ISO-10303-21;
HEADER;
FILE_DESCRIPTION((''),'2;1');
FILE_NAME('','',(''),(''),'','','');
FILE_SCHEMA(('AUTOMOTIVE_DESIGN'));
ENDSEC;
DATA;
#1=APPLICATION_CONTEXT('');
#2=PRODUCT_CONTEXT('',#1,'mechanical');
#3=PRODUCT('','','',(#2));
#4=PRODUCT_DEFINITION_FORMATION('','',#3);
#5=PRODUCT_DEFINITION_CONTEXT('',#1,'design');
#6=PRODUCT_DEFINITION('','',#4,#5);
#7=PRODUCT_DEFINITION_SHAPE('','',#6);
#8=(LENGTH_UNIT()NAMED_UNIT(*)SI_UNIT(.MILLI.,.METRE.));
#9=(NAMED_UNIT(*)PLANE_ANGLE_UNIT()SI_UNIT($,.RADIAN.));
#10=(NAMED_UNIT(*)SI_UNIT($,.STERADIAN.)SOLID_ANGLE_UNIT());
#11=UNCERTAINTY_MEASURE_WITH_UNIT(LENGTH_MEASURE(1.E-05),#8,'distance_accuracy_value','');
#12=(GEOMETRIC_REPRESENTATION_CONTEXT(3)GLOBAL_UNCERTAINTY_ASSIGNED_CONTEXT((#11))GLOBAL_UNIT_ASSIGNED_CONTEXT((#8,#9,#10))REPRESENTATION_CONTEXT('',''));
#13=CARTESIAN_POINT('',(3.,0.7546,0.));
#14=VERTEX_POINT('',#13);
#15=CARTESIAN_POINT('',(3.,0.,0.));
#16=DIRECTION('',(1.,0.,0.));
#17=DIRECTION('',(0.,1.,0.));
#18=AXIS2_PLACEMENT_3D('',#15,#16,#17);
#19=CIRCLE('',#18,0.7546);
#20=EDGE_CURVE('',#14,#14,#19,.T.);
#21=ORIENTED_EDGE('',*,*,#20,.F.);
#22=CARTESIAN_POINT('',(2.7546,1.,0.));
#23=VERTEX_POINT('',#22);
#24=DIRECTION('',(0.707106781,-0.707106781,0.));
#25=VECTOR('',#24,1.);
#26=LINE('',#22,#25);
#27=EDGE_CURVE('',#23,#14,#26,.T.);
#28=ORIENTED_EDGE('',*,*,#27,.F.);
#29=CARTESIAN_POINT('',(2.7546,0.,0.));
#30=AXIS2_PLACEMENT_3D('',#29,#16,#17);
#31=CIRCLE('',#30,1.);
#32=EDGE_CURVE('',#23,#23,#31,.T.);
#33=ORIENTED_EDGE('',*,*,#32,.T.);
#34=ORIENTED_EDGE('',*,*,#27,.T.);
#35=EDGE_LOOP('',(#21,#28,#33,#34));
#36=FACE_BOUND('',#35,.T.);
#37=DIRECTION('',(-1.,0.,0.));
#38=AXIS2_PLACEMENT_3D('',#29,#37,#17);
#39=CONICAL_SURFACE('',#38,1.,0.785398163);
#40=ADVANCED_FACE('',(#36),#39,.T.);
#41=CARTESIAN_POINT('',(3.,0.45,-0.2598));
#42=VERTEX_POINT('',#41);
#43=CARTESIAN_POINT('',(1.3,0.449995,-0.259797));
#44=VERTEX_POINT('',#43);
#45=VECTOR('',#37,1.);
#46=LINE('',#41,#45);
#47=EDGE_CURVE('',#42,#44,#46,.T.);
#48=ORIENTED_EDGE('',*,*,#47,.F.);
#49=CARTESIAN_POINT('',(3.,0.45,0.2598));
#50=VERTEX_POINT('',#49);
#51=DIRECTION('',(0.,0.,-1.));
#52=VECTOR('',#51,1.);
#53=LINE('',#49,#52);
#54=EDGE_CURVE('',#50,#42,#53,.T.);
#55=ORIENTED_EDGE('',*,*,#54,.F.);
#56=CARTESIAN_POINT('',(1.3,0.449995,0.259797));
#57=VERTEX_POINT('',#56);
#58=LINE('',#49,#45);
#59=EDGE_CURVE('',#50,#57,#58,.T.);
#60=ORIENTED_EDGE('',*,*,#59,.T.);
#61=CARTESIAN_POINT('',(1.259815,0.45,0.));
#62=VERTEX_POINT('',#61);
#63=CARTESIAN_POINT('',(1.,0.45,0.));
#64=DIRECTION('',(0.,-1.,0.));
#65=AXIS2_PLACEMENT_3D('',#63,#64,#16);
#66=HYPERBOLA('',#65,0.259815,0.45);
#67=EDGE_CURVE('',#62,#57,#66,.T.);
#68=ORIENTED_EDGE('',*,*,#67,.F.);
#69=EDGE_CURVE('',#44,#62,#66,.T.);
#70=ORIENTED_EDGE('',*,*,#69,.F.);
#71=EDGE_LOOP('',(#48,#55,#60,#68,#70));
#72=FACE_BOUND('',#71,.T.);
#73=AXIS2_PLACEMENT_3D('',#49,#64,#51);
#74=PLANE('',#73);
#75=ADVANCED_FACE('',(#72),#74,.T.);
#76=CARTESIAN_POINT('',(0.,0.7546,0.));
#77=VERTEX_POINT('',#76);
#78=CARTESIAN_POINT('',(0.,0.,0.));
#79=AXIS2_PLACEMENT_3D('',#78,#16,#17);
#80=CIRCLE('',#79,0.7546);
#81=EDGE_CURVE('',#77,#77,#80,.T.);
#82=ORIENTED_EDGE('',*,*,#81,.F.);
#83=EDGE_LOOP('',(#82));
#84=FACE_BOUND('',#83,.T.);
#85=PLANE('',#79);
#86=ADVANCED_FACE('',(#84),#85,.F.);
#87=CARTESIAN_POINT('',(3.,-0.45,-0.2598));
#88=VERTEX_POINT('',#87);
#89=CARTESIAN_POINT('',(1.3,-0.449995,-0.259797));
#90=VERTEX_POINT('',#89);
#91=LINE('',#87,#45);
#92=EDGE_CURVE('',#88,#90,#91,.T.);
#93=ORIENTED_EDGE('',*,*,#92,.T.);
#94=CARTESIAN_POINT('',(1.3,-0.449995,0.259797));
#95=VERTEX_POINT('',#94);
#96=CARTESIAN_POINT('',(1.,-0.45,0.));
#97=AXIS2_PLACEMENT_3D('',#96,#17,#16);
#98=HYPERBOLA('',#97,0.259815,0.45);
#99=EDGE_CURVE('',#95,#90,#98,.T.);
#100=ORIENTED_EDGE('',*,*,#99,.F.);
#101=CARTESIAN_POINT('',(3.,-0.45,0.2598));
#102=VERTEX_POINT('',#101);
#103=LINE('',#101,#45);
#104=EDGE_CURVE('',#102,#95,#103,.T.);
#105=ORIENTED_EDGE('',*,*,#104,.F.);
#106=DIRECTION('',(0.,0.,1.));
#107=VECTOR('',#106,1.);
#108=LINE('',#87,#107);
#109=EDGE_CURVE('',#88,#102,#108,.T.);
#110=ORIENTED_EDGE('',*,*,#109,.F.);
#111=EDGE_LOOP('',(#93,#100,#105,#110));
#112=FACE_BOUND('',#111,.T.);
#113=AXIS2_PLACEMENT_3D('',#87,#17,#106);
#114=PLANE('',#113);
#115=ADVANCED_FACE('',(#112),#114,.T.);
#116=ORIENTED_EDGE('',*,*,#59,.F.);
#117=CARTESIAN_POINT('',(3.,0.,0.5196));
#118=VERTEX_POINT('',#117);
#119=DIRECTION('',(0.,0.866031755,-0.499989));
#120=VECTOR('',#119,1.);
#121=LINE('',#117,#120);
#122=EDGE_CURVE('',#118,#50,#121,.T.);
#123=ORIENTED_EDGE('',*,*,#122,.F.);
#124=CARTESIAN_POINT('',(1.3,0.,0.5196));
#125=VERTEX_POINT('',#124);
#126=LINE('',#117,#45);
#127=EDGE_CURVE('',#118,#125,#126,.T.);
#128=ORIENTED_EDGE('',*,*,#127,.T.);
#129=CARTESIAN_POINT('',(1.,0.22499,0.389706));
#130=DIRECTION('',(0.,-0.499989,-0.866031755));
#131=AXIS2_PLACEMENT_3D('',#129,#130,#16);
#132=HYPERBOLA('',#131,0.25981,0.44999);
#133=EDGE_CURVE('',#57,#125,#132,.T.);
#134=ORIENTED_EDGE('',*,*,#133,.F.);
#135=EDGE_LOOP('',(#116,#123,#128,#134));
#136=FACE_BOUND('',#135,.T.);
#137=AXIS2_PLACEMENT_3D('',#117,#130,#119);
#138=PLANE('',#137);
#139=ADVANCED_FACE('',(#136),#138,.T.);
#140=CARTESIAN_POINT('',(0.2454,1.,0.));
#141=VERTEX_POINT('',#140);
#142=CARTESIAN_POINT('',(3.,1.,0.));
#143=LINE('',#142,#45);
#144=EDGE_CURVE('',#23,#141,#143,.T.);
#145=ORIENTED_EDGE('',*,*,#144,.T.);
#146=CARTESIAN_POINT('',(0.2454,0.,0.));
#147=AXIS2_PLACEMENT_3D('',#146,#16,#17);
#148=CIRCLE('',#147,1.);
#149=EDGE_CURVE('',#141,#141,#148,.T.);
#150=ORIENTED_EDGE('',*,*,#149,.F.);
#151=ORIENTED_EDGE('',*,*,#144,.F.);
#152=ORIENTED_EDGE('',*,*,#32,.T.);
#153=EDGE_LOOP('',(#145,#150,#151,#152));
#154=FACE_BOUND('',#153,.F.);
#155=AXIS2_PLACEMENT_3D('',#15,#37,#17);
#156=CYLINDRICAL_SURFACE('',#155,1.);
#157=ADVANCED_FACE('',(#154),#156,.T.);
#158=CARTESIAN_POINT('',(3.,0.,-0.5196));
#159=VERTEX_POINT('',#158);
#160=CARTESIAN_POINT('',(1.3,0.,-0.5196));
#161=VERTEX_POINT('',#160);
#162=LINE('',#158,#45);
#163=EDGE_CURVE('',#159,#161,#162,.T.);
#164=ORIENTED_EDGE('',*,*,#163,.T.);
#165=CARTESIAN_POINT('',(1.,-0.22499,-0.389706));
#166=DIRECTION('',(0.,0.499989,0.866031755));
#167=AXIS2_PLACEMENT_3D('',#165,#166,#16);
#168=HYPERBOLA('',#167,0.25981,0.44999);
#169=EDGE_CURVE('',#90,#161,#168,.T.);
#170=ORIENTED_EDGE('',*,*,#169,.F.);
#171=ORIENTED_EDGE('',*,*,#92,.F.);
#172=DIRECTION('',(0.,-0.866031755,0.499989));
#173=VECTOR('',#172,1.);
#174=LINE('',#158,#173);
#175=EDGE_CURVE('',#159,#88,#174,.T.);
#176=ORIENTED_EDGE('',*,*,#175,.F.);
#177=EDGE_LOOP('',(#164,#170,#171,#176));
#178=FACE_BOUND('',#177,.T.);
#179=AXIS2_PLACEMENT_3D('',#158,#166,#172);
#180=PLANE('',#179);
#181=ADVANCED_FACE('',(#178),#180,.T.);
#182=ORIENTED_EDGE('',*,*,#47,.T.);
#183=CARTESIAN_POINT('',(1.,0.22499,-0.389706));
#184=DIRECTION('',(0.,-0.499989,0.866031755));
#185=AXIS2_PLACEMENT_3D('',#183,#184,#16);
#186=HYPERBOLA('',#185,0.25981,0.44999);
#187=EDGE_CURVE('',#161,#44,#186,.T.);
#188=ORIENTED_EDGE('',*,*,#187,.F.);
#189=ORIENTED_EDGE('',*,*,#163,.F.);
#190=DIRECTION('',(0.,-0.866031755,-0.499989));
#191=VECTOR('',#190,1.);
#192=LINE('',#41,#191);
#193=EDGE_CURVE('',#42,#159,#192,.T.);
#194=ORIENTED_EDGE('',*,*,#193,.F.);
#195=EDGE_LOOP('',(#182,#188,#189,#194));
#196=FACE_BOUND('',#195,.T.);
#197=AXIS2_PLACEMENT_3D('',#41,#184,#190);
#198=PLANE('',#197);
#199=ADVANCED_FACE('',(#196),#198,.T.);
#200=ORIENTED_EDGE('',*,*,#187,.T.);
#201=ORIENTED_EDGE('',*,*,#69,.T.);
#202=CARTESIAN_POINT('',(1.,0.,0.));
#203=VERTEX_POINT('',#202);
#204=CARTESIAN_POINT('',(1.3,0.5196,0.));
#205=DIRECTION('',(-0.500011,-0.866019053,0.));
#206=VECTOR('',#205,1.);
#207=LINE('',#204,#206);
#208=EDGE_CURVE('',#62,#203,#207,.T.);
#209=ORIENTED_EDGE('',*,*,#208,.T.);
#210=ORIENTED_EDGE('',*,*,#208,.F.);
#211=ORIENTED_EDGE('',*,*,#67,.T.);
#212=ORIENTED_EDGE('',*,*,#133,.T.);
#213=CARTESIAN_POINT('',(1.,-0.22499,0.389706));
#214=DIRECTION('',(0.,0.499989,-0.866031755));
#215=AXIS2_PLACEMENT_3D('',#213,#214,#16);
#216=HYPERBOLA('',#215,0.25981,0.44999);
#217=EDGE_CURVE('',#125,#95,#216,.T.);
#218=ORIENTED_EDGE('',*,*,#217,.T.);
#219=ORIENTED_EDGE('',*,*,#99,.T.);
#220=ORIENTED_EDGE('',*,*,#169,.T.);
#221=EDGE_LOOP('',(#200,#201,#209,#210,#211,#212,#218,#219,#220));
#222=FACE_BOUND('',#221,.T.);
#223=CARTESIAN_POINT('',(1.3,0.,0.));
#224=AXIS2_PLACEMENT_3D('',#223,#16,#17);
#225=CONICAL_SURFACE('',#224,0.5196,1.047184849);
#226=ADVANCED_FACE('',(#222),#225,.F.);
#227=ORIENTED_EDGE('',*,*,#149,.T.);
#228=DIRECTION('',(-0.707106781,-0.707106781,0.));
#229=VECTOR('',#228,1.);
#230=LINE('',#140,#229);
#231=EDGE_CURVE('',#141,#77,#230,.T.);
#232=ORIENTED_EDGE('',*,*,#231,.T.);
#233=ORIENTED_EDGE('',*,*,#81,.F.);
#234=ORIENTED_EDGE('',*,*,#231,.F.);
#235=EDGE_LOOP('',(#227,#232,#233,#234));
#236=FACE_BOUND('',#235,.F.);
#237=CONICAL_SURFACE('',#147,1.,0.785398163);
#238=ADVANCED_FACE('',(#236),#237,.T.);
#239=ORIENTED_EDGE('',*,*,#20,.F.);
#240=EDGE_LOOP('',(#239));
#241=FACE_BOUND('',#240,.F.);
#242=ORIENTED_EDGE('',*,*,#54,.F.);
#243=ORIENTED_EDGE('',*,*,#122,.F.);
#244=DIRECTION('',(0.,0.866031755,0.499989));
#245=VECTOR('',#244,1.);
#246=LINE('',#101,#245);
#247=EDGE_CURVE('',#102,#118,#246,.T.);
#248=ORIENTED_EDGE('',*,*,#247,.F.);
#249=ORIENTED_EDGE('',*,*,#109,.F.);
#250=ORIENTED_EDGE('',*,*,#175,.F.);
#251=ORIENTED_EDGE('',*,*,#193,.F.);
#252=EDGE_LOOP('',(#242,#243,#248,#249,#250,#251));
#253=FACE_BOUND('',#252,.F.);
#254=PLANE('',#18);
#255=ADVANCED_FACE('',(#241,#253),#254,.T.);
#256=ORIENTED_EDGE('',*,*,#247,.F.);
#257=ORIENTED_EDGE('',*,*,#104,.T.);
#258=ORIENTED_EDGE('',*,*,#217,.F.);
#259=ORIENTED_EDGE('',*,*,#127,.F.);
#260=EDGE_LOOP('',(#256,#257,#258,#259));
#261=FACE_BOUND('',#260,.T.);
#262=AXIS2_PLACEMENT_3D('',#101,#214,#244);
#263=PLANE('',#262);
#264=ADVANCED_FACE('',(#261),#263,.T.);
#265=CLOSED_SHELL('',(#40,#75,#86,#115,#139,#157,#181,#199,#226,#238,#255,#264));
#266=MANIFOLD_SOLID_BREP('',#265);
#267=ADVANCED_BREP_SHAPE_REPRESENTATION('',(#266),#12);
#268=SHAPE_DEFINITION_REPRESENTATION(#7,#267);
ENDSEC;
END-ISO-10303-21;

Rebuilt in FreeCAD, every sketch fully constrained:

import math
import FreeCAD as App
import Part
import Sketcher
Q = App.Units.Quantity


def edges_at(feature, points):
    """Names of the edges that pass closest to the given points."""
    edges = feature.Shape.Edges
    near = lambda p: min(range(len(edges)), key=lambda i: edges[i].distToShape(Part.Vertex(*p))[0])
    return sorted({f"Edge{near(p) + 1}" for p in points})

doc = App.newDocument("Part")
params = doc.addObject("Spreadsheet::Sheet", "Params")
for row, (alias, value) in enumerate([
    ("sketch1_width", "3 mm"),
    ("sketch1_width2", "1.7 mm"),
    ("revolution_angle", "360 deg"),
    ("chamfer_size", "0.2454 mm"),
    ("chamfer2_size", "0.2454 mm"),
], start=1):
    params.set(f"A{row}", alias)
    params.set(f"B{row}", "=" + value)
    params.setAlias(f"B{row}", alias)

body = doc.addObject("PartDesign::Body", "Body")

# Sketch on XY plane
sketch1 = body.newObject("Sketcher::SketchObject", "Sketch")
sketch1.AttachmentSupport = (doc.getObject("XY_Plane"), [""])
sketch1.MapMode = "FlatFace"
sketch1.addGeometry([
    Part.LineSegment(App.Vector(0, 1, 0), App.Vector(0, 0, 0)),  # 0
    Part.LineSegment(App.Vector(0, 0, 0), App.Vector(1, 0, 0)),  # 1
    Part.LineSegment(App.Vector(1, 0, 0), App.Vector(1.3, 0.52, 0)),  # 2
    Part.LineSegment(App.Vector(1.3, 0.52, 0), App.Vector(3, 0.52, 0)),  # 3
    Part.LineSegment(App.Vector(3, 0.52, 0), App.Vector(3, 1, 0)),  # 4
    Part.LineSegment(App.Vector(3, 1, 0), App.Vector(0, 1, 0)),  # 5
], False)
sketch1.addConstraint([
    Sketcher.Constraint("Coincident", 0, 2, 1, 1),
    Sketcher.Constraint("Coincident", 1, 2, 2, 1),
    Sketcher.Constraint("Coincident", 2, 2, 3, 1),
    Sketcher.Constraint("Coincident", 3, 2, 4, 1),
    Sketcher.Constraint("Coincident", 4, 2, 5, 1),
    Sketcher.Constraint("Coincident", 5, 2, 0, 1),
    Sketcher.Constraint("Vertical", 0),
    Sketcher.Constraint("Horizontal", 1),
    Sketcher.Constraint("Horizontal", 3),
    Sketcher.Constraint("Vertical", 4),
    Sketcher.Constraint("Horizontal", 5),
    Sketcher.Constraint("Coincident", 0, 2, -1, 1),
    Sketcher.Constraint("Equal", 1, 0),
    Sketcher.Constraint("DistanceX", 5, 2, 5, 1, Q("3 mm")),
    Sketcher.Constraint("DistanceX", 3, 1, 3, 2, Q("1.7 mm")),
    Sketcher.Constraint("DistanceX", 1, 2, 3, 2, Q("2 mm")),
    Sketcher.Constraint("Angle", 2, Q("59.9993 deg")),
])
sketch1.setExpression("Constraints[13]", "Params.sketch1_width")
sketch1.setExpression("Constraints[14]", "Params.sketch1_width2")
revolution = body.newObject("PartDesign::Revolution", "Revolution")
revolution.Profile = sketch1
revolution.ReferenceAxis = (sketch1, ["H_Axis"])
revolution.setExpression("Angle", "Params.revolution_angle")
doc.recompute()

chamfer = body.newObject("PartDesign::Chamfer", "Chamfer")
chamfer.Base = (revolution, edges_at(revolution, [(3, -1, 0)]))
chamfer.setExpression("Size", "Params.chamfer_size")

# Sketch on YZ plane
sketch2 = body.newObject("Sketcher::SketchObject", "Sketch001")
sketch2.AttachmentSupport = (doc.getObject("YZ_Plane"), [""])
sketch2.MapMode = "FlatFace"
sketch2.AttachmentOffset = App.Placement(App.Vector(0, 0, 3), App.Rotation())
sketch2.addGeometry([
    Part.LineSegment(App.Vector(0.5, -0.3, 0), App.Vector(0, -0.5, 0)),  # 0
    Part.ArcOfCircle(Part.Circle(App.Vector(0, 0, 0), App.Vector(0, 0, 1), 0.5), math.radians(-90), math.radians(-30)),  # 1
    Part.ArcOfCircle(Part.Circle(App.Vector(0, 0, 0), App.Vector(0, 0, 1), 0.5), math.radians(-150), math.radians(-90)),  # 2
    Part.LineSegment(App.Vector(0, -0.5, 0), App.Vector(-0.5, -0.3, 0)),  # 3
    Part.LineSegment(App.Vector(0.5, 0.3, 0), App.Vector(0.5, -0.3, 0)),  # 4
    Part.ArcOfCircle(Part.Circle(App.Vector(0, 0, 0), App.Vector(0, 0, 1), 0.5), math.radians(-30), math.radians(30)),  # 5
    Part.ArcOfCircle(Part.Circle(App.Vector(0, 0, 0), App.Vector(0, 0, 1), 0.5), math.radians(150), math.radians(210)),  # 6
    Part.LineSegment(App.Vector(-0.5, 0.3, 0), App.Vector(-0.5, -0.3, 0)),  # 7
    Part.LineSegment(App.Vector(0, 0.5, 0), App.Vector(0.5, 0.3, 0)),  # 8
    Part.ArcOfCircle(Part.Circle(App.Vector(0, 0, 0), App.Vector(0, 0, 1), 0.5), math.radians(30), math.radians(90)),  # 9
    Part.ArcOfCircle(Part.Circle(App.Vector(0, 0, 0), App.Vector(0, 0, 1), 0.5), math.radians(90), math.radians(150)),  # 10
    Part.LineSegment(App.Vector(0, 0.5, 0), App.Vector(-0.5, 0.3, 0)),  # 11
], False)
sketch2.addConstraint([
    Sketcher.Constraint("Coincident", 0, 1, 1, 2),
    Sketcher.Constraint("Coincident", 1, 1, 0, 2),
    Sketcher.Constraint("Coincident", 2, 1, 3, 2),
    Sketcher.Constraint("Coincident", 3, 1, 2, 2),
    Sketcher.Constraint("Coincident", 4, 1, 5, 2),
    Sketcher.Constraint("Coincident", 5, 1, 4, 2),
    Sketcher.Constraint("Coincident", 6, 1, 7, 1),
    Sketcher.Constraint("Coincident", 7, 2, 6, 2),
    Sketcher.Constraint("Coincident", 8, 1, 9, 2),
    Sketcher.Constraint("Coincident", 9, 1, 8, 2),
    Sketcher.Constraint("Coincident", 10, 1, 11, 1),
    Sketcher.Constraint("Coincident", 11, 2, 10, 2),
    Sketcher.Constraint("Vertical", 4),
    Sketcher.Constraint("Vertical", 7),
    Sketcher.Constraint("Coincident", 1, 3, -1, 1),
    Sketcher.Constraint("Coincident", 2, 3, -1, 1),
    Sketcher.Constraint("Coincident", 5, 3, -1, 1),
    Sketcher.Constraint("Coincident", 6, 3, -1, 1),
    Sketcher.Constraint("Coincident", 9, 3, -1, 1),
    Sketcher.Constraint("Coincident", 10, 3, -1, 1),
    Sketcher.Constraint("Coincident", 3, 1, 1, 1),
    Sketcher.Constraint("Coincident", 5, 1, 0, 1),
    Sketcher.Constraint("Coincident", 7, 2, 2, 1),
    Sketcher.Constraint("Coincident", 9, 1, 4, 1),
    Sketcher.Constraint("Coincident", 10, 1, 8, 1),
    Sketcher.Constraint("PointOnObject", 1, 1, -2),
    Sketcher.Constraint("PointOnObject", 8, 1, -2),
    Sketcher.Constraint("Parallel", 3, 8),
    Sketcher.Constraint("Parallel", 0, 11),
    Sketcher.Constraint("Angle", 0, Q("-150.0007 deg")),
    Sketcher.Constraint("Radius", 1, Q("0.5196 mm")),
])
pad1 = body.newObject("PartDesign::Pad", "Pad")
pad1.Profile = sketch2
pad1.Type = "UpToFirst"
pad1.Reversed = True
doc.recompute()

chamfer2 = body.newObject("PartDesign::Chamfer", "Chamfer001")
chamfer2.Base = (pad1, edges_at(pad1, [(0, -1, 0)]))
chamfer2.setExpression("Size", "Params.chamfer2_size")

doc.recompute()
